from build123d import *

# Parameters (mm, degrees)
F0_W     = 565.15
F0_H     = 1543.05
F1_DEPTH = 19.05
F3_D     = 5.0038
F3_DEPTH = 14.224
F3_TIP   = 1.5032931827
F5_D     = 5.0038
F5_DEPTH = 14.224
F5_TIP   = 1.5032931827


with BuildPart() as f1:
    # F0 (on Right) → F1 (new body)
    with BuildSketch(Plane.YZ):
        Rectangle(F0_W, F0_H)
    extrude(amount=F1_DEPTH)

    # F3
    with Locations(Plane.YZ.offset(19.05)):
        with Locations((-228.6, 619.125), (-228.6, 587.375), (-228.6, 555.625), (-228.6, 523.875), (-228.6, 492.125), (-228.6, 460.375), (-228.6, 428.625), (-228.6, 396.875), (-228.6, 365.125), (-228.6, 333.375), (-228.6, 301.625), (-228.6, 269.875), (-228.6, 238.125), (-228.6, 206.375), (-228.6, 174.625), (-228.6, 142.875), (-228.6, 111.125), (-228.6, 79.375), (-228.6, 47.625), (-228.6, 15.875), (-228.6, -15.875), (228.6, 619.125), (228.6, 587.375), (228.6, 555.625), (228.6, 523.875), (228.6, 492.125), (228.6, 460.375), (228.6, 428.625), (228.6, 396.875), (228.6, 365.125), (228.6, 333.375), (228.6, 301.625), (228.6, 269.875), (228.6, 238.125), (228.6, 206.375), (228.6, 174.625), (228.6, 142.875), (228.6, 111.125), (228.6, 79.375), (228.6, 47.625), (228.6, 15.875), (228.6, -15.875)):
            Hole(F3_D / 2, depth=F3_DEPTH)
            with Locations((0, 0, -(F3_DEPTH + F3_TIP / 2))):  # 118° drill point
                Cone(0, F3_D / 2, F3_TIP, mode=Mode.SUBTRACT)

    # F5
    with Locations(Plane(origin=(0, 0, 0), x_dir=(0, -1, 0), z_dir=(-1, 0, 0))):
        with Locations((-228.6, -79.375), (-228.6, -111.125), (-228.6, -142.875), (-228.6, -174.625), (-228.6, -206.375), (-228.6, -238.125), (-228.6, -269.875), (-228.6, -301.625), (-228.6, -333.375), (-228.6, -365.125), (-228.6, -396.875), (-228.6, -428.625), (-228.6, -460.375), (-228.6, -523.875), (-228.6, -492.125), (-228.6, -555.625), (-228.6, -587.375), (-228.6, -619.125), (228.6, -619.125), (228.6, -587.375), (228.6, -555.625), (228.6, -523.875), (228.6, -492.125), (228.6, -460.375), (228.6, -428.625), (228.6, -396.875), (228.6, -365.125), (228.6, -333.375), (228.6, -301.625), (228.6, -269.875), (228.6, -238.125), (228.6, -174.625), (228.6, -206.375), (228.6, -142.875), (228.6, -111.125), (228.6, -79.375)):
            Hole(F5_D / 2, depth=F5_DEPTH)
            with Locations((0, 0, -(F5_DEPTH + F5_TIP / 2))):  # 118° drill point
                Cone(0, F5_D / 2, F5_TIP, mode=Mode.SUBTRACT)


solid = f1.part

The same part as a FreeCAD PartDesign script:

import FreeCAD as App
import Part
import Sketcher

V = App.Vector
Q = App.Units.Quantity

doc = App.newDocument("Part")
params = doc.addObject("Spreadsheet::Sheet", "Params")
for row, (alias, value) in enumerate([
    ("sketch1_width", "22.25 in"),
    ("sketch1_height", "60.75 in"),
    ("pad1_length", "0.75 in"),
    ("sketch2_diameter", "0.197 in"),
    ("hole_diameter", "0.197 in"),
    ("hole_depth", "0.56 in"),
    ("sketch3_diameter", "0.197 in"),
    ("hole2_diameter", "0.197 in"),
    ("hole2_depth", "0.56 in"),
], start=1):
    params.set(f"A{row}", alias)
    params.set(f"B{row}", "=" + value)
    params.setAlias(f"B{row}", alias)

body = doc.addObject("PartDesign::Body", "Body")

sketch1 = body.newObject("Sketcher::SketchObject", "Sketch")
sketch1.AttachmentSupport = (doc.getObject("YZ_Plane"), [""])
sketch1.MapMode = "FlatFace"
sketch1.addGeometry([
    Part.LineSegment(V(-283, 772, 0), V(-283, -772, 0)),
    Part.LineSegment(V(-283, -772, 0), V(283, -772, 0)),
    Part.LineSegment(V(283, -772, 0), V(283, 772, 0)),
    Part.LineSegment(V(283, 772, 0), V(-283, 772, 0)),
], False)
sketch1.addConstraint([
    Sketcher.Constraint("Coincident", 0, 2, 1, 1),
    Sketcher.Constraint("Coincident", 1, 2, 2, 1),
    Sketcher.Constraint("Coincident", 2, 2, 3, 1),
    Sketcher.Constraint("Coincident", 3, 2, 0, 1),
    Sketcher.Constraint("Vertical", 0),
    Sketcher.Constraint("Horizontal", 1),
    Sketcher.Constraint("Vertical", 2),
    Sketcher.Constraint("Horizontal", 3),
    Sketcher.Constraint("Symmetric", 0, 2, 2, 2, -1, 1),
    Sketcher.Constraint("DistanceX", 1, 1, 1, 2, Q("22.25 in")),
    Sketcher.Constraint("DistanceY", 0, 2, 0, 1, Q("60.75 in")),
])
sketch1.setExpression("Constraints[9]", "Params.sketch1_width")
sketch1.setExpression("Constraints[10]", "Params.sketch1_height")
pad1 = body.newObject("PartDesign::Pad", "Pad")
pad1.Profile = sketch1
pad1.setExpression("Length", "Params.pad1_length")

sketch2 = body.newObject("Sketcher::SketchObject", "Sketch001")
sketch2.AttachmentSupport = (doc.getObject("YZ_Plane"), [""])
sketch2.MapMode = "FlatFace"
sketch2.AttachmentOffset = App.Placement(V(0, 0, 0.75 * 25.4), App.Rotation())
sketch2.addGeometry([
    Part.Circle(V(-228.6, 619.1, 0), V(0, 0, 1), 2.5),
    Part.Circle(V(-228.6, 587.4, 0), V(0, 0, 1), 2.5),
    Part.Circle(V(-228.6, 555.6, 0), V(0, 0, 1), 2.5),
    Part.Circle(V(-228.6, 523.9, 0), V(0, 0, 1), 2.5),
    Part.Circle(V(-228.6, 492.1, 0), V(0, 0, 1), 2.5),
    Part.Circle(V(-228.6, 460.4, 0), V(0, 0, 1), 2.5),
    Part.Circle(V(-228.6, 428.6, 0), V(0, 0, 1), 2.5),
    Part.Circle(V(-228.6, 396.9, 0), V(0, 0, 1), 2.5),
    Part.Circle(V(-228.6, 365.1, 0), V(0, 0, 1), 2.5),
    Part.Circle(V(-228.6, 333.4, 0), V(0, 0, 1), 2.5),
    Part.Circle(V(-228.6, 301.6, 0), V(0, 0, 1), 2.5),
    Part.Circle(V(-228.6, 269.9, 0), V(0, 0, 1), 2.5),
    Part.Circle(V(-228.6, 238.1, 0), V(0, 0, 1), 2.5),
    Part.Circle(V(-228.6, 206.4, 0), V(0, 0, 1), 2.5),
    Part.Circle(V(-228.6, 174.6, 0), V(0, 0, 1), 2.5),
    Part.Circle(V(-228.6, 142.9, 0), V(0, 0, 1), 2.5),
    Part.Circle(V(-228.6, 111.1, 0), V(0, 0, 1), 2.5),
    Part.Circle(V(-228.6, 79.4, 0), V(0, 0, 1), 2.5),
    Part.Circle(V(-228.6, 47.6, 0), V(0, 0, 1), 2.5),
    Part.Circle(V(-228.6, 15.9, 0), V(0, 0, 1), 2.5),
    Part.Circle(V(-228.6, -15.9, 0), V(0, 0, 1), 2.5),
    Part.Circle(V(228.6, 619.1, 0), V(0, 0, 1), 2.5),
    Part.Circle(V(228.6, 587.4, 0), V(0, 0, 1), 2.5),
    Part.Circle(V(228.6, 555.6, 0), V(0, 0, 1), 2.5),
    Part.Circle(V(228.6, 523.9, 0), V(0, 0, 1), 2.5),
    Part.Circle(V(228.6, 492.1, 0), V(0, 0, 1), 2.5),
    Part.Circle(V(228.6, 460.4, 0), V(0, 0, 1), 2.5),
    Part.Circle(V(228.6, 428.6, 0), V(0, 0, 1), 2.5),
    Part.Circle(V(228.6, 396.9, 0), V(0, 0, 1), 2.5),
    Part.Circle(V(228.6, 365.1, 0), V(0, 0, 1), 2.5),
    Part.Circle(V(228.6, 333.4, 0), V(0, 0, 1), 2.5),
    Part.Circle(V(228.6, 301.6, 0), V(0, 0, 1), 2.5),
    Part.Circle(V(228.6, 269.9, 0), V(0, 0, 1), 2.5),
    Part.Circle(V(228.6, 238.1, 0), V(0, 0, 1), 2.5),
    Part.Circle(V(228.6, 206.4, 0), V(0, 0, 1), 2.5),
    Part.Circle(V(228.6, 174.6, 0), V(0, 0, 1), 2.5),
    Part.Circle(V(228.6, 142.9, 0), V(0, 0, 1), 2.5),
    Part.Circle(V(228.6, 111.1, 0), V(0, 0, 1), 2.5),
    Part.Circle(V(228.6, 79.4, 0), V(0, 0, 1), 2.5),
    Part.Circle(V(228.6, 47.6, 0), V(0, 0, 1), 2.5),
    Part.Circle(V(228.6, 15.9, 0), V(0, 0, 1), 2.5),
    Part.Circle(V(228.6, -15.9, 0), V(0, 0, 1), 2.5),
], False)
sketch2.addConstraint([
    Sketcher.Constraint("Equal", 0, 1),
    Sketcher.Constraint("Equal", 1, 2),
    Sketcher.Constraint("Equal", 2, 3),
    Sketcher.Constraint("Equal", 3, 4),
    Sketcher.Constraint("Equal", 4, 5),
    Sketcher.Constraint("Equal", 5, 6),
    Sketcher.Constraint("Equal", 6, 7),
    Sketcher.Constraint("Equal", 7, 8),
    Sketcher.Constraint("Equal", 8, 9),
    Sketcher.Constraint("Equal", 9, 10),
    Sketcher.Constraint("Equal", 10, 11),
    Sketcher.Constraint("Equal", 11, 12),
    Sketcher.Constraint("Equal", 12, 13),
    Sketcher.Constraint("Equal", 13, 14),
    Sketcher.Constraint("Equal", 14, 15),
    Sketcher.Constraint("Equal", 15, 16),
    Sketcher.Constraint("Equal", 16, 17),
    Sketcher.Constraint("Equal", 17, 18),
    Sketcher.Constraint("Equal", 18, 19),
    Sketcher.Constraint("Equal", 19, 20),
    Sketcher.Constraint("Equal", 20, 21),
    Sketcher.Constraint("Equal", 21, 22),
    Sketcher.Constraint("Equal", 22, 23),
    Sketcher.Constraint("Equal", 23, 24),
    Sketcher.Constraint("Equal", 24, 25),
    Sketcher.Constraint("Equal", 25, 26),
    Sketcher.Constraint("Equal", 26, 27),
    Sketcher.Constraint("Equal", 27, 28),
    Sketcher.Constraint("Equal", 28, 29),
    Sketcher.Constraint("Equal", 29, 30),
    Sketcher.Constraint("Equal", 30, 31),
    Sketcher.Constraint("Equal", 31, 32),
    Sketcher.Constraint("Equal", 32, 33),
    Sketcher.Constraint("Equal", 33, 34),
    Sketcher.Constraint("Equal", 34, 35),
    Sketcher.Constraint("Equal", 35, 36),
    Sketcher.Constraint("Equal", 36, 37),
    Sketcher.Constraint("Equal", 37, 38),
    Sketcher.Constraint("Equal", 38, 39),
    Sketcher.Constraint("Equal", 39, 40),
    Sketcher.Constraint("Equal", 40, 41),
    Sketcher.Constraint("Symmetric", 20, 3, 40, 3, -1, 1),
    Sketcher.Constraint("Symmetric", 19, 3, 41, 3, -1, 1),
    Sketcher.Constraint("Symmetric", 0, 3, 21, 3, -2),
    Sketcher.Constraint("Symmetric", 1, 3, 22, 3, -2),
    Sketcher.Constraint("Symmetric", 2, 3, 23, 3, -2),
    Sketcher.Constraint("Symmetric", 3, 3, 24, 3, -2),
    Sketcher.Constraint("Symmetric", 4, 3, 25, 3, -2),
    Sketcher.Constraint("Symmetric", 5, 3, 26, 3, -2),
    Sketcher.Constraint("Symmetric", 6, 3, 27, 3, -2),
    Sketcher.Constraint("Symmetric", 7, 3, 28, 3, -2),
    Sketcher.Constraint("Symmetric", 8, 3, 29, 3, -2),
    Sketcher.Constraint("Symmetric", 9, 3, 30, 3, -2),
    Sketcher.Constraint("Symmetric", 10, 3, 31, 3, -2),
    Sketcher.Constraint("Symmetric", 11, 3, 32, 3, -2),
    Sketcher.Constraint("Symmetric", 12, 3, 33, 3, -2),
    Sketcher.Constraint("Symmetric", 13, 3, 34, 3, -2),
    Sketcher.Constraint("Symmetric", 14, 3, 35, 3, -2),
    Sketcher.Constraint("Symmetric", 15, 3, 36, 3, -2),
    Sketcher.Constraint("Symmetric", 16, 3, 37, 3, -2),
    Sketcher.Constraint("Symmetric", 17, 3, 38, 3, -2),
    Sketcher.Constraint("Symmetric", 18, 3, 39, 3, -2),
    Sketcher.Constraint("Symmetric", 19, 3, 40, 3, -2),
    Sketcher.Constraint("Vertical", 0, 3, 1, 3),
    Sketcher.Constraint("Vertical", 1, 3, 2, 3),
    Sketcher.Constraint("Vertical", 2, 3, 3, 3),
    Sketcher.Constraint("Vertical", 3, 3, 4, 3),
    Sketcher.Constraint("Vertical", 4, 3, 5, 3),
    Sketcher.Constraint("Vertical", 5, 3, 6, 3),
    Sketcher.Constraint("Vertical", 6, 3, 7, 3),
    Sketcher.Constraint("Vertical", 7, 3, 8, 3),
    Sketcher.Constraint("Vertical", 8, 3, 9, 3),
    Sketcher.Constraint("Vertical", 9, 3, 10, 3),
    Sketcher.Constraint("Vertical", 10, 3, 11, 3),
    Sketcher.Constraint("Vertical", 11, 3, 12, 3),
    Sketcher.Constraint("Vertical", 12, 3, 13, 3),
    Sketcher.Constraint("Vertical", 13, 3, 14, 3),
    Sketcher.Constraint("Vertical", 14, 3, 15, 3),
    Sketcher.Constraint("Vertical", 15, 3, 16, 3),
    Sketcher.Constraint("Vertical", 16, 3, 17, 3),
    Sketcher.Constraint("Vertical", 17, 3, 18, 3),
    Sketcher.Constraint("Vertical", 18, 3, 19, 3),
    Sketcher.Constraint("Diameter", 0, Q("0.197 in")),
    Sketcher.Constraint("DistanceX", 0, 3, -1, 1, Q("9 in")),
    Sketcher.Constraint("DistanceY", 4, 3, 0, 3, Q("5 in")),
    Sketcher.Constraint("DistanceY", 5, 3, 1, 3, Q("5 in")),
    Sketcher.Constraint("DistanceY", 6, 3, 2, 3, Q("5 in")),
    Sketcher.Constraint("DistanceY", 7, 3, 3, 3, Q("5 in")),
    Sketcher.Constraint("DistanceY", 8, 3, 4, 3, Q("5 in")),
    Sketcher.Constraint("DistanceY", 9, 3, 5, 3, Q("5 in")),
    Sketcher.Constraint("DistanceY", 10, 3, 6, 3, Q("5 in")),
    Sketcher.Constraint("DistanceY", 11, 3, 7, 3, Q("5 in")),
    Sketcher.Constraint("DistanceY", 12, 3, 8, 3, Q("5 in")),
    Sketcher.Constraint("DistanceY", 13, 3, 9, 3, Q("5 in")),
    Sketcher.Constraint("DistanceY", 14, 3, 10, 3, Q("5 in")),
    Sketcher.Constraint("DistanceY", 15, 3, 11, 3, Q("5 in")),
    Sketcher.Constraint("DistanceY", 16, 3, 12, 3, Q("5 in")),
    Sketcher.Constraint("DistanceY", 17, 3, 13, 3, Q("5 in")),
    Sketcher.Constraint("DistanceY", 18, 3, 14, 3, Q("5 in")),
    Sketcher.Constraint("DistanceY", 19, 3, 15, 3, Q("5 in")),
    Sketcher.Constraint("DistanceY", 20, 3, 16, 3, Q("5 in")),
    Sketcher.Constraint("DistanceY", 2, 3, 0, 3, Q("2.5 in")),
    Sketcher.Constraint("DistanceY", 3, 3, 1, 3, Q("2.5 in")),
    Sketcher.Constraint("DistanceY", 1, 3, 0, 3, Q("1.25 in")),
])
sketch2.setExpression("Constraints[82]", "Params.sketch2_diameter")
doc.recompute()
hole = body.newObject("PartDesign::Hole", "Hole")
hole.Profile = sketch2
hole.ThreadType = "None"
hole.setExpression("Diameter", "Params.hole_diameter")
hole.DepthType = "Dimension"
hole.setExpression("Depth", "Params.hole_depth")
hole.DrillPoint = "Angled"
hole.DrillPointAngle = 118

sketch3 = body.newObject("Sketcher::SketchObject", "Sketch002")
sketch3.AttachmentSupport = (doc.getObject("YZ_Plane"), [""])
sketch3.MapMode = "FlatFace"
sketch3.addGeometry([
    Part.Circle(V(228.6, -79.4, 0), V(0, 0, 1), 2.5),
    Part.Circle(V(228.6, -111.1, 0), V(0, 0, 1), 2.5),
    Part.Circle(V(228.6, -142.9, 0), V(0, 0, 1), 2.5),
    Part.Circle(V(228.6, -174.6, 0), V(0, 0, 1), 2.5),
    Part.Circle(V(228.6, -206.4, 0), V(0, 0, 1), 2.5),
    Part.Circle(V(228.6, -238.1, 0), V(0, 0, 1), 2.5),
    Part.Circle(V(228.6, -269.9, 0), V(0, 0, 1), 2.5),
    Part.Circle(V(228.6, -301.6, 0), V(0, 0, 1), 2.5),
    Part.Circle(V(228.6, -333.4, 0), V(0, 0, 1), 2.5),
    Part.Circle(V(228.6, -365.1, 0), V(0, 0, 1), 2.5),
    Part.Circle(V(228.6, -396.9, 0), V(0, 0, 1), 2.5),
    Part.Circle(V(228.6, -428.6, 0), V(0, 0, 1), 2.5),
    Part.Circle(V(228.6, -460.4, 0), V(0, 0, 1), 2.5),
    Part.Circle(V(228.6, -523.9, 0), V(0, 0, 1), 2.5),
    Part.Circle(V(228.6, -492.1, 0), V(0, 0, 1), 2.5),
    Part.Circle(V(228.6, -555.6, 0), V(0, 0, 1), 2.5),
    Part.Circle(V(228.6, -587.4, 0), V(0, 0, 1), 2.5),
    Part.Circle(V(228.6, -619.1, 0), V(0, 0, 1), 2.5),
    Part.Circle(V(-228.6, -619.1, 0), V(0, 0, 1), 2.5),
    Part.Circle(V(-228.6, -587.4, 0), V(0, 0, 1), 2.5),
    Part.Circle(V(-228.6, -555.6, 0), V(0, 0, 1), 2.5),
    Part.Circle(V(-228.6, -523.9, 0), V(0, 0, 1), 2.5),
    Part.Circle(V(-228.6, -492.1, 0), V(0, 0, 1), 2.5),
    Part.Circle(V(-228.6, -460.4, 0), V(0, 0, 1), 2.5),
    Part.Circle(V(-228.6, -428.6, 0), V(0, 0, 1), 2.5),
    Part.Circle(V(-228.6, -396.9, 0), V(0, 0, 1), 2.5),
    Part.Circle(V(-228.6, -365.1, 0), V(0, 0, 1), 2.5),
    Part.Circle(V(-228.6, -333.4, 0), V(0, 0, 1), 2.5),
    Part.Circle(V(-228.6, -301.6, 0), V(0, 0, 1), 2.5),
    Part.Circle(V(-228.6, -269.9, 0), V(0, 0, 1), 2.5),
    Part.Circle(V(-228.6, -238.1, 0), V(0, 0, 1), 2.5),
    Part.Circle(V(-228.6, -174.6, 0), V(0, 0, 1), 2.5),
    Part.Circle(V(-228.6, -206.4, 0), V(0, 0, 1), 2.5),
    Part.Circle(V(-228.6, -142.9, 0), V(0, 0, 1), 2.5),
    Part.Circle(V(-228.6, -111.1, 0), V(0, 0, 1), 2.5),
    Part.Circle(V(-228.6, -79.4, 0), V(0, 0, 1), 2.5),
], False)
sketch3.addConstraint([
    Sketcher.Constraint("Equal", 0, 1),
    Sketcher.Constraint("Equal", 1, 2),
    Sketcher.Constraint("Equal", 2, 3),
    Sketcher.Constraint("Equal", 3, 4),
    Sketcher.Constraint("Equal", 4, 5),
    Sketcher.Constraint("Equal", 5, 6),
    Sketcher.Constraint("Equal", 6, 7),
    Sketcher.Constraint("Equal", 7, 8),
    Sketcher.Constraint("Equal", 8, 9),
    Sketcher.Constraint("Equal", 9, 10),
    Sketcher.Constraint("Equal", 10, 11),
    Sketcher.Constraint("Equal", 11, 12),
    Sketcher.Constraint("Equal", 12, 13),
    Sketcher.Constraint("Equal", 13, 14),
    Sketcher.Constraint("Equal", 14, 15),
    Sketcher.Constraint("Equal", 15, 16),
    Sketcher.Constraint("Equal", 16, 17),
    Sketcher.Constraint("Equal", 17, 18),
    Sketcher.Constraint("Equal", 18, 19),
    Sketcher.Constraint("Equal", 19, 20),
    Sketcher.Constraint("Equal", 20, 21),
    Sketcher.Constraint("Equal", 21, 22),
    Sketcher.Constraint("Equal", 22, 23),
    Sketcher.Constraint("Equal", 23, 24),
    Sketcher.Constraint("Equal", 24, 25),
    Sketcher.Constraint("Equal", 25, 26),
    Sketcher.Constraint("Equal", 26, 27),
    Sketcher.Constraint("Equal", 27, 28),
    Sketcher.Constraint("Equal", 28, 29),
    Sketcher.Constraint("Equal", 29, 30),
    Sketcher.Constraint("Equal", 30, 31),
    Sketcher.Constraint("Equal", 31, 32),
    Sketcher.Constraint("Equal", 32, 33),
    Sketcher.Constraint("Equal", 33, 34),
    Sketcher.Constraint("Equal", 34, 35),
    Sketcher.Constraint("Symmetric", 17, 3, 18, 3, -2),
    Sketcher.Constraint("Symmetric", 16, 3, 19, 3, -2),
    Sketcher.Constraint("Symmetric", 15, 3, 20, 3, -2),
    Sketcher.Constraint("Symmetric", 13, 3, 21, 3, -2),
    Sketcher.Constraint("Symmetric", 14, 3, 22, 3, -2),
    Sketcher.Constraint("Symmetric", 12, 3, 23, 3, -2),
    Sketcher.Constraint("Symmetric", 11, 3, 24, 3, -2),
    Sketcher.Constraint("Symmetric", 10, 3, 25, 3, -2),
    Sketcher.Constraint("Symmetric", 9, 3, 26, 3, -2),
    Sketcher.Constraint("Symmetric", 8, 3, 27, 3, -2),
    Sketcher.Constraint("Symmetric", 7, 3, 28, 3, -2),
    Sketcher.Constraint("Symmetric", 6, 3, 29, 3, -2),
    Sketcher.Constraint("Symmetric", 5, 3, 30, 3, -2),
    Sketcher.Constraint("Symmetric", 3, 3, 31, 3, -2),
    Sketcher.Constraint("Symmetric", 4, 3, 32, 3, -2),
    Sketcher.Constraint("Symmetric", 2, 3, 33, 3, -2),
    Sketcher.Constraint("Symmetric", 1, 3, 34, 3, -2),
    Sketcher.Constraint("Symmetric", 0, 3, 35, 3, -2),
    Sketcher.Constraint("Vertical", 0, 3, 1, 3),
    Sketcher.Constraint("Vertical", 1, 3, 2, 3),
    Sketcher.Constraint("Vertical", 2, 3, 3, 3),
    Sketcher.Constraint("Vertical", 3, 3, 4, 3),
    Sketcher.Constraint("Vertical", 4, 3, 5, 3),
    Sketcher.Constraint("Vertical", 5, 3, 6, 3),
    Sketcher.Constraint("Vertical", 6, 3, 7, 3),
    Sketcher.Constraint("Vertical", 7, 3, 8, 3),
    Sketcher.Constraint("Vertical", 8, 3, 9, 3),
    Sketcher.Constraint("Vertical", 9, 3, 10, 3),
    Sketcher.Constraint("Vertical", 10, 3, 11, 3),
    Sketcher.Constraint("Vertical", 11, 3, 12, 3),
    Sketcher.Constraint("Vertical", 12, 3, 13, 3),
    Sketcher.Constraint("Vertical", 13, 3, 14, 3),
    Sketcher.Constraint("Vertical", 14, 3, 15, 3),
    Sketcher.Constraint("Vertical", 15, 3, 16, 3),
    Sketcher.Constraint("Vertical", 16, 3, 17, 3),
    Sketcher.Constraint("Diameter", 0, Q("0.197 in")),
    Sketcher.Constraint("DistanceX", -1, 1, 0, 3, Q("9 in")),
    Sketcher.Constraint("DistanceY", 4, 3, 0, 3, Q("5 in")),
    Sketcher.Constraint("DistanceY", 5, 3, 1, 3, Q("5 in")),
    Sketcher.Constraint("DistanceY", 6, 3, 2, 3, Q("5 in")),
    Sketcher.Constraint("DistanceY", 7, 3, 3, 3, Q("5 in")),
    Sketcher.Constraint("DistanceY", 8, 3, 4, 3, Q("5 in")),
    Sketcher.Constraint("DistanceY", 9, 3, 5, 3, Q("5 in")),
    Sketcher.Constraint("DistanceY", 10, 3, 6, 3, Q("5 in")),
    Sketcher.Constraint("DistanceY", 11, 3, 7, 3, Q("5 in")),
    Sketcher.Constraint("DistanceY", 12, 3, 8, 3, Q("5 in")),
    Sketcher.Constraint("DistanceY", 13, 3, 10, 3, Q("5 in")),
    Sketcher.Constraint("DistanceY", 14, 3, 9, 3, Q("5 in")),
    Sketcher.Constraint("DistanceY", 15, 3, 11, 3, Q("5 in")),
    Sketcher.Constraint("DistanceY", 16, 3, 12, 3, Q("5 in")),
    Sketcher.Constraint("DistanceY", 17, 3, 14, 3, Q("5 in")),
    Sketcher.Constraint("DistanceY", 2, 3, 0, 3, Q("2.5 in")),
    Sketcher.Constraint("DistanceY", 3, 3, 1, 3, Q("2.5 in")),
    Sketcher.Constraint("DistanceY", 1, 3, 0, 3, Q("1.25 in")),
    Sketcher.Constraint("DistanceY", 0, 3, -1, 1, Q("3.125 in")),
])
sketch3.setExpression("Constraints[70]", "Params.sketch3_diameter")
doc.recompute()
hole2 = body.newObject("PartDesign::Hole", "Hole001")
hole2.Profile = sketch3
hole2.ThreadType = "None"
hole2.setExpression("Diameter", "Params.hole2_diameter")
hole2.DepthType = "Dimension"
hole2.setExpression("Depth", "Params.hole2_depth")
hole2.DrillPoint = "Angled"
hole2.DrillPointAngle = 118
hole2.Reversed = True

doc.recompute()
